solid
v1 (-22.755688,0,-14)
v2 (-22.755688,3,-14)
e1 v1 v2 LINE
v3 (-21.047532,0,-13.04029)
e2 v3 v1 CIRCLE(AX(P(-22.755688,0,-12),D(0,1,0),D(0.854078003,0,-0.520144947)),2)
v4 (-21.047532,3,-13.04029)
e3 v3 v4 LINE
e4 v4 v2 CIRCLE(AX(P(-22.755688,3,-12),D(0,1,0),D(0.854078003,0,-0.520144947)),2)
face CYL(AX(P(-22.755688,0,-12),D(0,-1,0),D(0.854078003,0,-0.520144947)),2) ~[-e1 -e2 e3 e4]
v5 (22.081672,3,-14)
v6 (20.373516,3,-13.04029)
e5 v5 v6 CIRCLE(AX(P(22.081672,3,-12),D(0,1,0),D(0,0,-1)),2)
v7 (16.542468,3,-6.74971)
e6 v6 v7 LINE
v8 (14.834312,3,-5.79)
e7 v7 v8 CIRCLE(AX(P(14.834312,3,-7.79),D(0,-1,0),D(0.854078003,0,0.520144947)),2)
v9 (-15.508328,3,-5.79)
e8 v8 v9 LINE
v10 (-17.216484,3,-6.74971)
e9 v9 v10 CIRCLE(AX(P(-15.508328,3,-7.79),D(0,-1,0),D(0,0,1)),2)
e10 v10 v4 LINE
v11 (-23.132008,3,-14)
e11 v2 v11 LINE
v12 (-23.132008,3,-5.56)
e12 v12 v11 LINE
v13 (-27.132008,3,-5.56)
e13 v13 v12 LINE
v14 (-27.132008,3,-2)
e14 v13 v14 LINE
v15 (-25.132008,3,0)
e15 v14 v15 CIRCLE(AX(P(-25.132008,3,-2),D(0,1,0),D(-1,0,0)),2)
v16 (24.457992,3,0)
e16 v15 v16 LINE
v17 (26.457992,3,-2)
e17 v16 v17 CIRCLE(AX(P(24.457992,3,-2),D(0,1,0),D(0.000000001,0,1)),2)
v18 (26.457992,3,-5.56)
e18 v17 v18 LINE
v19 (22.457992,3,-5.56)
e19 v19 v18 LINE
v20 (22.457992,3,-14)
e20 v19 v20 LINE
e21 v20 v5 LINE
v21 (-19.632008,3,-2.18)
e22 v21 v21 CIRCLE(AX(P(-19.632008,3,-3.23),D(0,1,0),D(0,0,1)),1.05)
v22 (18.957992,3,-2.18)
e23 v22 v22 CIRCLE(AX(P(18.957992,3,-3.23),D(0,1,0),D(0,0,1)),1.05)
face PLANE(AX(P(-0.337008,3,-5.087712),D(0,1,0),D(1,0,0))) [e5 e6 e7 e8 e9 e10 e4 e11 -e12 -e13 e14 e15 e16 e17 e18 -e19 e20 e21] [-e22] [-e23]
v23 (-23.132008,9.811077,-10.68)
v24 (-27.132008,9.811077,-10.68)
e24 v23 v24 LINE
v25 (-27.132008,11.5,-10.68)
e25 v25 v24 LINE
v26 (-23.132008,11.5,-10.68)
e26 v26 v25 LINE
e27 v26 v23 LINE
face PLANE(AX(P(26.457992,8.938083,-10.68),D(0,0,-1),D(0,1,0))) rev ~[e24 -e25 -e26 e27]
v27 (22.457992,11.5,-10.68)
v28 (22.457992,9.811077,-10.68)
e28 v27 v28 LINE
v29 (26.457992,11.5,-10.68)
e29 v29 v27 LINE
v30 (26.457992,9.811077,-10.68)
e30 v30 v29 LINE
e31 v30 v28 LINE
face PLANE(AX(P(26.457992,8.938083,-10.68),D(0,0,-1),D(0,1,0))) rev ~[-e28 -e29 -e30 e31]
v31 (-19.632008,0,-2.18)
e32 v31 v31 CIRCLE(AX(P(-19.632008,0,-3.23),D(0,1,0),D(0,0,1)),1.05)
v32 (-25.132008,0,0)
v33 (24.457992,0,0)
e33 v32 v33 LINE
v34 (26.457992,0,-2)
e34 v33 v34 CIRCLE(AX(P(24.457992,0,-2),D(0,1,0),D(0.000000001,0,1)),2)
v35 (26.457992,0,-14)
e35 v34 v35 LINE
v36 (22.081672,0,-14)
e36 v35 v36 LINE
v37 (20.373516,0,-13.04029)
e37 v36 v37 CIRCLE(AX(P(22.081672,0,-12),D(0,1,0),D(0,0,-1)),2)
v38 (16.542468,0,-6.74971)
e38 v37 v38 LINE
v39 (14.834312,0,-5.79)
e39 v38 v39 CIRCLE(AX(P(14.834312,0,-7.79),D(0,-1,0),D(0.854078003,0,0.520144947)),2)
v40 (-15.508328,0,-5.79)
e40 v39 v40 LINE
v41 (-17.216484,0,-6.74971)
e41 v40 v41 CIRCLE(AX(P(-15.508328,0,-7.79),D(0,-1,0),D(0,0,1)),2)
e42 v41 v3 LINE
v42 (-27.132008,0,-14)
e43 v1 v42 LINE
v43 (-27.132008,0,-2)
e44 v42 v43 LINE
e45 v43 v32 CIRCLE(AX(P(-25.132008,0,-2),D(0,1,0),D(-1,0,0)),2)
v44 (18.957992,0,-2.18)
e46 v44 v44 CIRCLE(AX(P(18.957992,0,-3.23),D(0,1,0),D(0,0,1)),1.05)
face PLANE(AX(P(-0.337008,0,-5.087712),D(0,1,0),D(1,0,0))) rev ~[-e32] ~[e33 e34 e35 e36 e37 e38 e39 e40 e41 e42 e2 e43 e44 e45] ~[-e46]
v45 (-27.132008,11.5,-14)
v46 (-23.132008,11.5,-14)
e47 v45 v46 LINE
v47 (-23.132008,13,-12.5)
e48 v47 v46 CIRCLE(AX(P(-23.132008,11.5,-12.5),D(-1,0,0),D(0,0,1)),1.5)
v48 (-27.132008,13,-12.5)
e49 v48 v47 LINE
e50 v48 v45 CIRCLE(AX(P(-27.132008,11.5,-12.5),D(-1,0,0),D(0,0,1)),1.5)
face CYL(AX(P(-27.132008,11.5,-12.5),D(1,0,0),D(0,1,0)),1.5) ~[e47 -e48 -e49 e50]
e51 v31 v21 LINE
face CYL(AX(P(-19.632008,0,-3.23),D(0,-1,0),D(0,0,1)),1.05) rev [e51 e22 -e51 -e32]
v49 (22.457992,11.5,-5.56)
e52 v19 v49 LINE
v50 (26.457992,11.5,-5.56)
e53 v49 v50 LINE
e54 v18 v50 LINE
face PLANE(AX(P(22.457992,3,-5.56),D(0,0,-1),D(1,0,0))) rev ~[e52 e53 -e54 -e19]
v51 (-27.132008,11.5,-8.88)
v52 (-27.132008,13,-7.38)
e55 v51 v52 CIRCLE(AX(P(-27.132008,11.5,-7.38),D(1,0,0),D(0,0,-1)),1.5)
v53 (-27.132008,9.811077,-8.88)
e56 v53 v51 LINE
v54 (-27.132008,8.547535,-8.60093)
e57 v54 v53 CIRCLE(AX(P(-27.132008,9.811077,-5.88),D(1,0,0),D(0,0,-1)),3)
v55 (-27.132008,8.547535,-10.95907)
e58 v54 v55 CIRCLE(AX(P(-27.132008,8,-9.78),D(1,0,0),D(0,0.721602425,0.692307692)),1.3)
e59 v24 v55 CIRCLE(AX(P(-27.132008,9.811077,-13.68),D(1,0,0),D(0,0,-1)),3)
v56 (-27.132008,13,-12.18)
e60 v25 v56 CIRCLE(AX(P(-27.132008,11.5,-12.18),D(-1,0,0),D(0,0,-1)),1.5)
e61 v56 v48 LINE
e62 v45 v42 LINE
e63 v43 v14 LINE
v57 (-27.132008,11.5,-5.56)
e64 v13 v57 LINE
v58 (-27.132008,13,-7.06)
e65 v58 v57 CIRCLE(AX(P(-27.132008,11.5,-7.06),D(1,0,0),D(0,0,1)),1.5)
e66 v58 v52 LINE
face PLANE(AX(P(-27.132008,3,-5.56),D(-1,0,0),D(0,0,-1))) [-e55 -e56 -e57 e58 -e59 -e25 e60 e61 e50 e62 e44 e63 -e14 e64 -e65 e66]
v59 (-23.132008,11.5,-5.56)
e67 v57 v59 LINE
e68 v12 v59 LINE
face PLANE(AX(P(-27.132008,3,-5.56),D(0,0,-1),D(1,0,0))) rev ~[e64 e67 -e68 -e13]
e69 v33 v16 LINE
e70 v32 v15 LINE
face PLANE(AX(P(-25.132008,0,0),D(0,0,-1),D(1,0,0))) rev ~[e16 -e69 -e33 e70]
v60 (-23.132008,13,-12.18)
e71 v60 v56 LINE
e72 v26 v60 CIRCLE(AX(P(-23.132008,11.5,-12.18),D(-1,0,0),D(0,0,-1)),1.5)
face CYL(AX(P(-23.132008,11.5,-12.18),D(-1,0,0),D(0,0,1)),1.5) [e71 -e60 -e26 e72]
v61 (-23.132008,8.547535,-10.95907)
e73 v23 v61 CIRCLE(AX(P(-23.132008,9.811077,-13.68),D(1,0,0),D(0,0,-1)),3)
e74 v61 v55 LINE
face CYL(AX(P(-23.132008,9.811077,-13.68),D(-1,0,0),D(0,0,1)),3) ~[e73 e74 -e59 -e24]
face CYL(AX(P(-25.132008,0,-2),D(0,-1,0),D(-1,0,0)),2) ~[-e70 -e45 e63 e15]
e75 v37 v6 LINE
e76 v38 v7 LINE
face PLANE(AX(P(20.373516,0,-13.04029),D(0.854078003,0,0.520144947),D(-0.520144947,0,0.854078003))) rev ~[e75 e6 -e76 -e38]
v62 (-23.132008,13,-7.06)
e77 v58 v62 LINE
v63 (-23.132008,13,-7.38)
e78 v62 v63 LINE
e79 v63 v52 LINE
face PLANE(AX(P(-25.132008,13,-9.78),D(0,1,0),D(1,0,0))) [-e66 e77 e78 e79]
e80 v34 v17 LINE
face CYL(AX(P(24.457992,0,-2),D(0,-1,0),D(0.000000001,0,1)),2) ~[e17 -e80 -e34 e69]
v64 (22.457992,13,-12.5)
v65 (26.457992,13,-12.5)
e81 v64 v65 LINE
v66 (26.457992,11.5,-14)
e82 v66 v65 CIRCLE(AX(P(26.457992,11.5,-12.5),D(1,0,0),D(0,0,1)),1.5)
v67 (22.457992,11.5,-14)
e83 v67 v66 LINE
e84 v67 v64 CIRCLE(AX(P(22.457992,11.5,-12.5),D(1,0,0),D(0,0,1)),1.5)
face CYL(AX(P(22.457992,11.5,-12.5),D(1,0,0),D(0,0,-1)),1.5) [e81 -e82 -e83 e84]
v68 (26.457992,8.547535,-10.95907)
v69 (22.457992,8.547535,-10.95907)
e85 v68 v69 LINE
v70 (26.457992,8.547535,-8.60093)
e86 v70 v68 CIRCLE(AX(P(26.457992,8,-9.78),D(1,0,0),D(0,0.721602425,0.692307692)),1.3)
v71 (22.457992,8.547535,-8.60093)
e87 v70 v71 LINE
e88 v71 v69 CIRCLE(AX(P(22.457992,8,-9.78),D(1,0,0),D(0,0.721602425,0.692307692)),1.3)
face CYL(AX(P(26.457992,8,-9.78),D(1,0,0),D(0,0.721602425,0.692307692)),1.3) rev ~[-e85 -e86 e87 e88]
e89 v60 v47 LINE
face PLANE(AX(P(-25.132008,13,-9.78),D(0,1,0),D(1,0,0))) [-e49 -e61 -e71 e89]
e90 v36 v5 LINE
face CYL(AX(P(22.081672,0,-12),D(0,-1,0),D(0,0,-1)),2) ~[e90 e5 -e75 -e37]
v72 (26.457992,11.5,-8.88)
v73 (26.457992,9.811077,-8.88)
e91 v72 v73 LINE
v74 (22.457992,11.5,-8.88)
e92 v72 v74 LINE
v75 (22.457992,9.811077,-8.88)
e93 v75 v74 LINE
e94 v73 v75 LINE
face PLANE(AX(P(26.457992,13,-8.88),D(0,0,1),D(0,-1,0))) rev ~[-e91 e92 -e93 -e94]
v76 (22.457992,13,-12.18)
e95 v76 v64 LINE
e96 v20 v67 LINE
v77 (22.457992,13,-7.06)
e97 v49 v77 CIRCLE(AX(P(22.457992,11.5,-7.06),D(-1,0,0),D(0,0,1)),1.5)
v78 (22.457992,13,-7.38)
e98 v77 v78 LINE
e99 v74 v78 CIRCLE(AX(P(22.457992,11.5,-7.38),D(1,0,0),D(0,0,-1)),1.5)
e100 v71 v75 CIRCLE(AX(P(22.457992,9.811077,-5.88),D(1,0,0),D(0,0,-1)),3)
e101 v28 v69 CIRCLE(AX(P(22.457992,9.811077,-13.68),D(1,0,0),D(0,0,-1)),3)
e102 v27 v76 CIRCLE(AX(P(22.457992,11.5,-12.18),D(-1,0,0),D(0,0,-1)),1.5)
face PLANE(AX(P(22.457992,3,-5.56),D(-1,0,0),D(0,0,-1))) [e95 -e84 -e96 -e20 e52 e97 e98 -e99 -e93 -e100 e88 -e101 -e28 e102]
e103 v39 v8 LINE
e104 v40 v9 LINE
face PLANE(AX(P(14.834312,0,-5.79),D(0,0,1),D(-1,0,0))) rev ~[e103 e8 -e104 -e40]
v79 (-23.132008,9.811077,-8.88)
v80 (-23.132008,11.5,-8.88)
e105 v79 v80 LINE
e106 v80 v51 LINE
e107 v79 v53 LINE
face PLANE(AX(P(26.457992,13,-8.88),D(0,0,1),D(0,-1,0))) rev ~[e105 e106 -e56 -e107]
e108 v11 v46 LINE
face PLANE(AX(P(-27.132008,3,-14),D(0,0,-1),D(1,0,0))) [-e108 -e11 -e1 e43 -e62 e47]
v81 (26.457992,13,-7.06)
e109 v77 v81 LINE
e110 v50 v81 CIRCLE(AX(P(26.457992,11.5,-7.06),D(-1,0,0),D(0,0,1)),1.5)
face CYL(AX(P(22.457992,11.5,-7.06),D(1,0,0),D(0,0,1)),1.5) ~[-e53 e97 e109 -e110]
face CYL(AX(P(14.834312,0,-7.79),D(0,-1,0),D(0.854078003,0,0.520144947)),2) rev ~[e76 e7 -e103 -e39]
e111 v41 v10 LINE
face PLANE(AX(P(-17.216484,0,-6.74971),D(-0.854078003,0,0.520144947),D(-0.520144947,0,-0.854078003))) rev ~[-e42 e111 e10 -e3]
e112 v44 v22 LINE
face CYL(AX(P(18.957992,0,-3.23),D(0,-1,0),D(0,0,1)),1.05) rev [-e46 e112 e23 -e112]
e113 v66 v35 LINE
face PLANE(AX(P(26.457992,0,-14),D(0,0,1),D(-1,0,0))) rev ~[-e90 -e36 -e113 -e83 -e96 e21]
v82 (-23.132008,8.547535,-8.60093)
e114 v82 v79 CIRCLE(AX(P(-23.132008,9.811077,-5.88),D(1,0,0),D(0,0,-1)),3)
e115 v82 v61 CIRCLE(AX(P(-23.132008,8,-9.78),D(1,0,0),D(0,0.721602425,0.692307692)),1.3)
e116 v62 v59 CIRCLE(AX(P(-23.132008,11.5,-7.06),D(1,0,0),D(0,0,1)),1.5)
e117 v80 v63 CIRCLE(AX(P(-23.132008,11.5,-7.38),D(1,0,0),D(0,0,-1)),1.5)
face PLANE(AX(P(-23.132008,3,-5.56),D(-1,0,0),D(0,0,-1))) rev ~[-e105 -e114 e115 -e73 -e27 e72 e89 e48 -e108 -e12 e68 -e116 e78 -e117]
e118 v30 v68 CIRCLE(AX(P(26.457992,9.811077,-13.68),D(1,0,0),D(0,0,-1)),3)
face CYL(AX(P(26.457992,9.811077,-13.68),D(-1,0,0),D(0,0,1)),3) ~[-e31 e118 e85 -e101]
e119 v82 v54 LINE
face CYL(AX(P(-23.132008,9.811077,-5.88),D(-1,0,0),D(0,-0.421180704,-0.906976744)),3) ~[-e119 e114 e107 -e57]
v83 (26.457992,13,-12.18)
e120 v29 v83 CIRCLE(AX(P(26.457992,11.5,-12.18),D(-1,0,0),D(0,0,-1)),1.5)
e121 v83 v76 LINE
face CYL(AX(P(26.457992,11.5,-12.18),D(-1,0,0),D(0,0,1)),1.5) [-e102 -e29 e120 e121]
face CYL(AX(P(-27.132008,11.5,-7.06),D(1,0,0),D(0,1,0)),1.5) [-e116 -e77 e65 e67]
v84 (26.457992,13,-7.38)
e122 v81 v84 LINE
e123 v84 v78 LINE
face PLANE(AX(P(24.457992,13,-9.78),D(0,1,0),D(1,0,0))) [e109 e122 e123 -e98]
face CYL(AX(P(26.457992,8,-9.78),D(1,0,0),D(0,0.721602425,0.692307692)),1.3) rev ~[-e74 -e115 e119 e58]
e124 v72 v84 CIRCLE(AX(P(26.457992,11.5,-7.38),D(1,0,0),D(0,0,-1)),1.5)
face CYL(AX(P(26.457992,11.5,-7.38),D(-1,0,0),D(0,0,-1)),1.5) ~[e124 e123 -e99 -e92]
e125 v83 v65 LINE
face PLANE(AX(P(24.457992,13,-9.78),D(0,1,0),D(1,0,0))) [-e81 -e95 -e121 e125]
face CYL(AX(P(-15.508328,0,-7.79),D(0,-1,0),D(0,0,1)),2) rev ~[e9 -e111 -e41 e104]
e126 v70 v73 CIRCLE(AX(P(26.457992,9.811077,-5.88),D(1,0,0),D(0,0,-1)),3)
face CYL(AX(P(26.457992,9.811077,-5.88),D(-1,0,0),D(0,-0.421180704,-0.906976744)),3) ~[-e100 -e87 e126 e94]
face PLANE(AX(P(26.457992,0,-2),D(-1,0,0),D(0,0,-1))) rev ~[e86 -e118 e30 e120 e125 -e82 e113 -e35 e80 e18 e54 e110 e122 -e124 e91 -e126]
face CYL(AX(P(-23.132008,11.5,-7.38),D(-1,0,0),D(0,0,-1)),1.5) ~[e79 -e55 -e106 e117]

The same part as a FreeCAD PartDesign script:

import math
import FreeCAD as App
import Part
import Sketcher
from FreeCAD import Vector


def edges_at(feature, points):
    """Names of the edges that pass closest to the given points."""
    edges = feature.Shape.Edges
    near = lambda p: min(range(len(edges)), key=lambda i: edges[i].distToShape(Part.Vertex(*p))[0])
    return sorted({f"Edge{near(p) + 1}" for p in points})


def add_polygon(sketch, points):
    """Adds a closed chain of lines whose ends are joined by coincident constraints."""
    first, n = sketch.GeometryCount, len(points)
    for a, b in zip(points, points[1:] + points[:1]):
        sketch.addGeometry(Part.LineSegment(App.Vector(*a, 0), App.Vector(*b, 0)), False)
    for i in range(n):
        sketch.addConstraint(Sketcher.Constraint("Coincident", first + i, 2, first + (i + 1) % n, 1))

doc = App.newDocument("Part")
body = doc.addObject("PartDesign::Body", "Body")

# Sketch on XZ plane
sketch1 = body.newObject("Sketcher::SketchObject", "Sketch")
sketch1.AttachmentSupport = (doc.getObject("XZ_Plane"), [""])
sketch1.MapMode = "FlatFace"
sketch1.addGeometry([
    Part.ArcOfCircle(Part.Circle(Vector(24.5, -2, 0), Vector(0, 0, 1), 2), math.radians(0), math.radians(90)),  # 0
    Part.LineSegment(Vector(26.5, -2, 0), Vector(26.5, -14, 0)),  # 1
    Part.LineSegment(Vector(26.5, -14, 0), Vector(22.1, -14, 0)),  # 2
    Part.ArcOfCircle(Part.Circle(Vector(22.1, -12, 0), Vector(0, 0, 1), 2), math.radians(-149), math.radians(-90)),  # 3
    Part.LineSegment(Vector(20.4, -13, 0), Vector(16.5, -6.7, 0)),  # 4
    Part.ArcOfCircle(Part.Circle(Vector(14.8, -7.8, 0), Vector(0, 0, 1), 2), math.radians(31), math.radians(90)),  # 5
    Part.LineSegment(Vector(14.8, -5.8, 0), Vector(-15.5, -5.8, 0)),  # 6
    Part.ArcOfCircle(Part.Circle(Vector(-15.5, -7.8, 0), Vector(0, 0, 1), 2), math.radians(90), math.radians(149)),  # 7
    Part.LineSegment(Vector(-17.2, -6.7, 0), Vector(-21, -13, 0)),  # 8
    Part.ArcOfCircle(Part.Circle(Vector(-22.8, -12, 0), Vector(0, 0, 1), 2), math.radians(-90), math.radians(-31)),  # 9
    Part.LineSegment(Vector(-22.8, -14, 0), Vector(-27.1, -14, 0)),  # 10
    Part.LineSegment(Vector(-27.1, -14, 0), Vector(-27.1, -2, 0)),  # 11
    Part.ArcOfCircle(Part.Circle(Vector(-25.1, -2, 0), Vector(0, 0, 1), 2), math.radians(90), math.radians(180)),  # 12
    Part.LineSegment(Vector(-25.1, 0, 0), Vector(24.5, 0, 0)),  # 13
    Part.Circle(Vector(-19.6, -3.2, 0), Vector(0, 0, 1), 1.1),  # 14
    Part.Circle(Vector(19, -3.2, 0), Vector(0, 0, 1), 1.1),  # 15
], False)
sketch1.addConstraint([
    Sketcher.Constraint("Tangent", 0, 1, 1, 1),
    Sketcher.Constraint("Coincident", 1, 2, 2, 1),
    Sketcher.Constraint("Tangent", 2, 2, 3, 2),
    Sketcher.Constraint("Tangent", 3, 1, 4, 1),
    Sketcher.Constraint("Tangent", 4, 2, 5, 1),
    Sketcher.Constraint("Tangent", 5, 2, 6, 1),
    Sketcher.Constraint("Tangent", 6, 2, 7, 1),
    Sketcher.Constraint("Tangent", 7, 2, 8, 1),
    Sketcher.Constraint("Tangent", 8, 2, 9, 2),
    Sketcher.Constraint("Tangent", 9, 1, 10, 1),
    Sketcher.Constraint("Coincident", 10, 2, 11, 1),
    Sketcher.Constraint("Tangent", 11, 2, 12, 2),
    Sketcher.Constraint("Tangent", 12, 1, 13, 1),
    Sketcher.Constraint("Tangent", 13, 2, 0, 2),
    Sketcher.Constraint("Vertical", 1),
    Sketcher.Constraint("Horizontal", 2),
    Sketcher.Constraint("Horizontal", 6),
    Sketcher.Constraint("Horizontal", 10),
    Sketcher.Constraint("Vertical", 11),
    Sketcher.Constraint("Horizontal", 13),
    Sketcher.Constraint("Equal", 0, 3),
    Sketcher.Constraint("Equal", 3, 5),
    Sketcher.Constraint("Equal", 5, 7),
    Sketcher.Constraint("Equal", 7, 9),
    Sketcher.Constraint("Equal", 9, 12),
    Sketcher.Constraint("Equal", 14, 15),
    Sketcher.Constraint("PointOnObject", 12, 1, -1),
    Sketcher.Constraint("Horizontal", 3, 3, 9, 3),
    Sketcher.Constraint("Horizontal", 14, 3, 15, 3),
    Sketcher.Constraint("Horizontal", 4, 2, 7, 2),
    Sketcher.Constraint("Equal", 2, 10),
    Sketcher.Constraint("Radius", 0, 2.0),
    Sketcher.Constraint("Diameter", 14, 2.1),
    Sketcher.Constraint("DistanceY", 1, 2, 1, 1, 12.0),
    Sketcher.Constraint("DistanceX", 13, 1, 13, 2, 49.59),
    Sketcher.Constraint("DistanceX", 12, 3, 14, 3, 5.5),
    Sketcher.Constraint("DistanceX", 15, 3, 0, 3, 5.5),
    Sketcher.Constraint("DistanceY", 5, 3, -1, 1, 7.79),
    Sketcher.Constraint("DistanceY", 14, 3, -1, 1, 3.23),
    Sketcher.Constraint("DistanceX", 7, 3, 3, 3, 37.59),
    Sketcher.Constraint("DistanceX", 2, 2, 2, 1, 4.37632),
    Sketcher.Constraint("DistanceX", -1, 1, 3, 3, 22.081672),
])
pad1 = body.newObject("PartDesign::Pad", "Pad")
pad1.Profile = sketch1
pad1.Length = 3
pad1.Reversed = True

# Sketch on XZ plane
sketch2 = body.newObject("Sketcher::SketchObject", "Sketch001")
sketch2.AttachmentSupport = (doc.getObject("XZ_Plane"), [""])
sketch2.MapMode = "FlatFace"
sketch2.AttachmentOffset = App.Placement(Vector(0, 0, -3), App.Rotation())
add_polygon(sketch2, [(-27.1, -14), (-27.1, -5.6), (-23.1, -5.6), (-23.1, -14)])  # lines 0-3
add_polygon(sketch2, [(22.5, -14), (22.5, -5.6), (26.5, -5.6), (26.5, -14)])  # lines 4-7
sketch2.addConstraint([
    Sketcher.Constraint("Vertical", 0),
    Sketcher.Constraint("Horizontal", 1),
    Sketcher.Constraint("Vertical", 2),
    Sketcher.Constraint("Horizontal", 3),
    Sketcher.Constraint("Vertical", 4),
    Sketcher.Constraint("Horizontal", 5),
    Sketcher.Constraint("Vertical", 6),
    Sketcher.Constraint("Horizontal", 7),
    Sketcher.Constraint("Horizontal", 1, 2, 4, 2),
    Sketcher.Constraint("Horizontal", 3, 2, 6, 2),
    Sketcher.Constraint("Equal", 3, 5),
    Sketcher.Constraint("DistanceX", 1, 1, 1, 2, 4.0),
    Sketcher.Constraint("DistanceY", 2, 2, -1, 1, 14.0),
    Sketcher.Constraint("DistanceY", 0, 1, 0, 2, 8.44),
    Sketcher.Constraint("DistanceX", 1, 2, 4, 2, 45.59),
    Sketcher.Constraint("DistanceX", 0, 2, -1, 1, 27.132008),
])
pad2 = body.newObject("PartDesign::Pad", "Pad001")
pad2.Profile = sketch2
pad2.Length = 10
pad2.Reversed = True

# Sketch on YZ plane
sketch3 = body.newObject("Sketcher::SketchObject", "Sketch002")
sketch3.AttachmentSupport = (doc.getObject("YZ_Plane"), [""])
sketch3.MapMode = "FlatFace"
sketch3.AttachmentOffset = App.Placement(Vector(0, 0, 26.457992), App.Rotation())
sketch3.addGeometry([
    Part.LineSegment(Vector(13, -10.7, 0), Vector(13, -8.9, 0)),
    Part.LineSegment(Vector(13, -8.9, 0), Vector(8.9, -8.9, 0)),
    Part.ArcOfCircle(Part.Circle(Vector(8, -9.8, 0), Vector(0, 0, 1), 1.3), math.radians(44), math.radians(316)),
    Part.LineSegment(Vector(8.9, -10.7, 0), Vector(13, -10.7, 0)),
], False)
sketch3.addConstraint([
    Sketcher.Constraint("Coincident", 0, 2, 1, 1),
    Sketcher.Constraint("Coincident", 1, 2, 2, 1),
    Sketcher.Constraint("Coincident", 2, 2, 3, 1),
    Sketcher.Constraint("Coincident", 3, 2, 0, 1),
    Sketcher.Constraint("Vertical", 0),
    Sketcher.Constraint("Horizontal", 1),
    Sketcher.Constraint("Horizontal", 3),
    Sketcher.Constraint("Vertical", 1, 2, 2, 2),
    Sketcher.Constraint("Radius", 2, 1.3),
    Sketcher.Constraint("DistanceY", 0, 1, 0, 2, 1.8),
    Sketcher.Constraint("DistanceX", -1, 1, 2, 3, 8.0),
    Sketcher.Constraint("DistanceX", -1, 1, 0, 2, 13.0),
    Sketcher.Constraint("DistanceY", 2, 3, -1, 1, 9.78),
])
pocket1 = body.newObject("PartDesign::Pocket", "Pocket")
pocket1.Profile = sketch3
pocket1.Type = "ThroughAll"
doc.recompute()

fillet = body.newObject("PartDesign::Fillet", "Fillet")
fillet.Base = (pocket1, edges_at(pocket1, [
    (-25.132, 8.938, -10.68),
    (24.458, 8.938, -10.68),
    (-25.132, 8.938, -8.88),
    (24.458, 8.938, -8.88),
]))
fillet.Radius = 3
doc.recompute()

fillet2 = body.newObject("PartDesign::Fillet", "Fillet001")
fillet2.Base = (fillet, edges_at(fillet, [
    (-25.132, 13, -5.56),
    (-25.132, 13, -14),
    (24.458, 13, -14),
    (24.458, 13, -5.56),
    (24.458, 13, -10.68),
    (24.458, 13, -8.88),
    (-25.132, 13, -8.88),
    (-25.132, 13, -10.68),
]))
fillet2.Radius = 1.5

doc.recompute()
